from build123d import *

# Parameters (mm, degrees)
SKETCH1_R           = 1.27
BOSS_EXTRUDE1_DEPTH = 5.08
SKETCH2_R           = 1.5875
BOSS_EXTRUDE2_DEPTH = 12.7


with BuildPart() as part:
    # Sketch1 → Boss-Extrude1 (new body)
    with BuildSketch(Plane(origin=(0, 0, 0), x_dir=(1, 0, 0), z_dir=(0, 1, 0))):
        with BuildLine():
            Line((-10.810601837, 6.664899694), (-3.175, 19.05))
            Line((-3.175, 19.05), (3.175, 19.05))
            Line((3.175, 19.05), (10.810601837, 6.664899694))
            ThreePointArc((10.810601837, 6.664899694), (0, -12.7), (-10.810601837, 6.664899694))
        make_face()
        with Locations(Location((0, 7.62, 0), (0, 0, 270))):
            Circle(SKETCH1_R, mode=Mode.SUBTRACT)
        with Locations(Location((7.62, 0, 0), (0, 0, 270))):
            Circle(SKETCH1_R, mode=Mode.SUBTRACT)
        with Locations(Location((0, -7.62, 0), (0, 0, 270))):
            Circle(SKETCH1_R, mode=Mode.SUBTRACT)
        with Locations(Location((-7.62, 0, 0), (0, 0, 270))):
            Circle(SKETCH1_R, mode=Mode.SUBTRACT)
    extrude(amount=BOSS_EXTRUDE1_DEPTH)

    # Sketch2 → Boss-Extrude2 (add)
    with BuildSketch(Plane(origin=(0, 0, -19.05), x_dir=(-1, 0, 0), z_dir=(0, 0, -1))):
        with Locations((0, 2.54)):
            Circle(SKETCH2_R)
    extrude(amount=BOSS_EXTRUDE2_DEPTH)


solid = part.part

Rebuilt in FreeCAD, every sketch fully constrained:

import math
import FreeCAD as App
import Part
import Sketcher
Q = App.Units.Quantity

doc = App.newDocument("Part")
params = doc.addObject("Spreadsheet::Sheet", "Params")
for row, (alias, value) in enumerate([
    ("sketch1_diameter", "0.1 in"),
    ("sketch1_radius", "0.5 in"),
    ("sketch1_width", "0.25 in"),
    ("pad1_length", "0.2 in"),
    ("sketch2_diameter", "0.125 in"),
    ("pad2_length", "0.5 in"),
], start=1):
    params.set(f"A{row}", alias)
    params.set(f"B{row}", "=" + value)
    params.setAlias(f"B{row}", alias)

body = doc.addObject("PartDesign::Body", "Body")

# Sketch on XZ plane
sketch1 = body.newObject("Sketcher::SketchObject", "Sketch")
sketch1.AttachmentSupport = (doc.getObject("XZ_Plane"), [""])
sketch1.MapMode = "FlatFace"
sketch1.addGeometry(Part.LineSegment(App.Vector(-3.2, -19.1, 0), App.Vector(-10.8, -6.7, 0)), False)
sketch1.addGeometry(Part.ArcOfCircle(Part.Circle(App.Vector(0, 0, 0), App.Vector(0, 0, 1), 12.7), math.radians(-32), math.radians(212)), False)
sketch1.addGeometry(Part.LineSegment(App.Vector(10.8, -6.7, 0), App.Vector(3.2, -19.1, 0)), False)
sketch1.addGeometry(Part.LineSegment(App.Vector(3.2, -19.1, 0), App.Vector(-3.2, -19.1, 0)), False)
sketch1.addGeometry(Part.Circle(App.Vector(0, 7.6, 0), App.Vector(0, 0, 1), 1.3), False)
sketch1.addGeometry(Part.Circle(App.Vector(7.6, 0, 0), App.Vector(0, 0, 1), 1.3), False)
sketch1.addGeometry(Part.Circle(App.Vector(-7.6, 0, 0), App.Vector(0, 0, 1), 1.3), False)
sketch1.addGeometry(Part.Circle(App.Vector(0, -7.6, 0), App.Vector(0, 0, 1), 1.3), False)
sketch1.addConstraint(Sketcher.Constraint("Tangent", 0, 2, 1, 2))
sketch1.addConstraint(Sketcher.Constraint("Tangent", 1, 1, 2, 1))
sketch1.addConstraint(Sketcher.Constraint("Coincident", 2, 2, 3, 1))
sketch1.addConstraint(Sketcher.Constraint("Coincident", 3, 2, 0, 1))
sketch1.addConstraint(Sketcher.Constraint("Horizontal", 3))
sketch1.addConstraint(Sketcher.Constraint("Coincident", 1, 3, -1, 1))
sketch1.addConstraint(Sketcher.Constraint("Equal", 4, 5))
sketch1.addConstraint(Sketcher.Constraint("Equal", 5, 6))
sketch1.addConstraint(Sketcher.Constraint("Equal", 6, 7))
sketch1.addConstraint(Sketcher.Constraint("Symmetric", 5, 3, 6, 3, -1, 1))
sketch1.addConstraint(Sketcher.Constraint("Symmetric", 4, 3, 7, 3, -1, 1))
sketch1.addConstraint(Sketcher.Constraint("PointOnObject", 4, 3, -2))
sketch1.addConstraint(Sketcher.Constraint("PointOnObject", 5, 3, -1))
sketch1.addConstraint(Sketcher.Constraint("Horizontal", 0, 2, 1, 1))
sketch1.addConstraint(Sketcher.Constraint("Diameter", 4, Q("0.1 in")))
sketch1.addConstraint(Sketcher.Constraint("Radius", 1, Q("0.5 in")))
sketch1.addConstraint(Sketcher.Constraint("DistanceX", 3, 2, 3, 1, Q("0.25 in")))
sketch1.addConstraint(Sketcher.Constraint("DistanceY", -1, 1, 4, 3, Q("0.3 in")))
sketch1.addConstraint(Sketcher.Constraint("DistanceX", -1, 1, 5, 3, Q("0.3 in")))
sketch1.addConstraint(Sketcher.Constraint("DistanceY", 2, 2, -1, 1, Q("0.75 in")))
sketch1.setExpression("Constraints[14]", "Params.sketch1_diameter")
sketch1.setExpression("Constraints[15]", "Params.sketch1_radius")
sketch1.setExpression("Constraints[16]", "Params.sketch1_width")
pad1 = body.newObject("PartDesign::Pad", "Pad")
pad1.Profile = sketch1
pad1.setExpression("Length", "Params.pad1_length")
pad1.Reversed = True

# Sketch on XY plane
sketch2 = body.newObject("Sketcher::SketchObject", "Sketch001")
sketch2.AttachmentSupport = (doc.getObject("XY_Plane"), [""])
sketch2.MapMode = "FlatFace"
sketch2.AttachmentOffset = App.Placement(App.Vector(0, 0, -0.75 * 25.4), App.Rotation())
sketch2.addGeometry(Part.Circle(App.Vector(0, 2.5, 0), App.Vector(0, 0, 1), 1.6), False)
sketch2.addConstraint(Sketcher.Constraint("PointOnObject", 0, 3, -2))
sketch2.addConstraint(Sketcher.Constraint("Diameter", 0, Q("0.125 in")))
sketch2.addConstraint(Sketcher.Constraint("DistanceY", -1, 1, 0, 3, Q("0.1 in")))
sketch2.setExpression("Constraints[1]", "Params.sketch2_diameter")
pad2 = body.newObject("PartDesign::Pad", "Pad001")
pad2.Profile = sketch2
pad2.setExpression("Length", "Params.pad2_length")
pad2.Reversed = True

doc.recompute()
